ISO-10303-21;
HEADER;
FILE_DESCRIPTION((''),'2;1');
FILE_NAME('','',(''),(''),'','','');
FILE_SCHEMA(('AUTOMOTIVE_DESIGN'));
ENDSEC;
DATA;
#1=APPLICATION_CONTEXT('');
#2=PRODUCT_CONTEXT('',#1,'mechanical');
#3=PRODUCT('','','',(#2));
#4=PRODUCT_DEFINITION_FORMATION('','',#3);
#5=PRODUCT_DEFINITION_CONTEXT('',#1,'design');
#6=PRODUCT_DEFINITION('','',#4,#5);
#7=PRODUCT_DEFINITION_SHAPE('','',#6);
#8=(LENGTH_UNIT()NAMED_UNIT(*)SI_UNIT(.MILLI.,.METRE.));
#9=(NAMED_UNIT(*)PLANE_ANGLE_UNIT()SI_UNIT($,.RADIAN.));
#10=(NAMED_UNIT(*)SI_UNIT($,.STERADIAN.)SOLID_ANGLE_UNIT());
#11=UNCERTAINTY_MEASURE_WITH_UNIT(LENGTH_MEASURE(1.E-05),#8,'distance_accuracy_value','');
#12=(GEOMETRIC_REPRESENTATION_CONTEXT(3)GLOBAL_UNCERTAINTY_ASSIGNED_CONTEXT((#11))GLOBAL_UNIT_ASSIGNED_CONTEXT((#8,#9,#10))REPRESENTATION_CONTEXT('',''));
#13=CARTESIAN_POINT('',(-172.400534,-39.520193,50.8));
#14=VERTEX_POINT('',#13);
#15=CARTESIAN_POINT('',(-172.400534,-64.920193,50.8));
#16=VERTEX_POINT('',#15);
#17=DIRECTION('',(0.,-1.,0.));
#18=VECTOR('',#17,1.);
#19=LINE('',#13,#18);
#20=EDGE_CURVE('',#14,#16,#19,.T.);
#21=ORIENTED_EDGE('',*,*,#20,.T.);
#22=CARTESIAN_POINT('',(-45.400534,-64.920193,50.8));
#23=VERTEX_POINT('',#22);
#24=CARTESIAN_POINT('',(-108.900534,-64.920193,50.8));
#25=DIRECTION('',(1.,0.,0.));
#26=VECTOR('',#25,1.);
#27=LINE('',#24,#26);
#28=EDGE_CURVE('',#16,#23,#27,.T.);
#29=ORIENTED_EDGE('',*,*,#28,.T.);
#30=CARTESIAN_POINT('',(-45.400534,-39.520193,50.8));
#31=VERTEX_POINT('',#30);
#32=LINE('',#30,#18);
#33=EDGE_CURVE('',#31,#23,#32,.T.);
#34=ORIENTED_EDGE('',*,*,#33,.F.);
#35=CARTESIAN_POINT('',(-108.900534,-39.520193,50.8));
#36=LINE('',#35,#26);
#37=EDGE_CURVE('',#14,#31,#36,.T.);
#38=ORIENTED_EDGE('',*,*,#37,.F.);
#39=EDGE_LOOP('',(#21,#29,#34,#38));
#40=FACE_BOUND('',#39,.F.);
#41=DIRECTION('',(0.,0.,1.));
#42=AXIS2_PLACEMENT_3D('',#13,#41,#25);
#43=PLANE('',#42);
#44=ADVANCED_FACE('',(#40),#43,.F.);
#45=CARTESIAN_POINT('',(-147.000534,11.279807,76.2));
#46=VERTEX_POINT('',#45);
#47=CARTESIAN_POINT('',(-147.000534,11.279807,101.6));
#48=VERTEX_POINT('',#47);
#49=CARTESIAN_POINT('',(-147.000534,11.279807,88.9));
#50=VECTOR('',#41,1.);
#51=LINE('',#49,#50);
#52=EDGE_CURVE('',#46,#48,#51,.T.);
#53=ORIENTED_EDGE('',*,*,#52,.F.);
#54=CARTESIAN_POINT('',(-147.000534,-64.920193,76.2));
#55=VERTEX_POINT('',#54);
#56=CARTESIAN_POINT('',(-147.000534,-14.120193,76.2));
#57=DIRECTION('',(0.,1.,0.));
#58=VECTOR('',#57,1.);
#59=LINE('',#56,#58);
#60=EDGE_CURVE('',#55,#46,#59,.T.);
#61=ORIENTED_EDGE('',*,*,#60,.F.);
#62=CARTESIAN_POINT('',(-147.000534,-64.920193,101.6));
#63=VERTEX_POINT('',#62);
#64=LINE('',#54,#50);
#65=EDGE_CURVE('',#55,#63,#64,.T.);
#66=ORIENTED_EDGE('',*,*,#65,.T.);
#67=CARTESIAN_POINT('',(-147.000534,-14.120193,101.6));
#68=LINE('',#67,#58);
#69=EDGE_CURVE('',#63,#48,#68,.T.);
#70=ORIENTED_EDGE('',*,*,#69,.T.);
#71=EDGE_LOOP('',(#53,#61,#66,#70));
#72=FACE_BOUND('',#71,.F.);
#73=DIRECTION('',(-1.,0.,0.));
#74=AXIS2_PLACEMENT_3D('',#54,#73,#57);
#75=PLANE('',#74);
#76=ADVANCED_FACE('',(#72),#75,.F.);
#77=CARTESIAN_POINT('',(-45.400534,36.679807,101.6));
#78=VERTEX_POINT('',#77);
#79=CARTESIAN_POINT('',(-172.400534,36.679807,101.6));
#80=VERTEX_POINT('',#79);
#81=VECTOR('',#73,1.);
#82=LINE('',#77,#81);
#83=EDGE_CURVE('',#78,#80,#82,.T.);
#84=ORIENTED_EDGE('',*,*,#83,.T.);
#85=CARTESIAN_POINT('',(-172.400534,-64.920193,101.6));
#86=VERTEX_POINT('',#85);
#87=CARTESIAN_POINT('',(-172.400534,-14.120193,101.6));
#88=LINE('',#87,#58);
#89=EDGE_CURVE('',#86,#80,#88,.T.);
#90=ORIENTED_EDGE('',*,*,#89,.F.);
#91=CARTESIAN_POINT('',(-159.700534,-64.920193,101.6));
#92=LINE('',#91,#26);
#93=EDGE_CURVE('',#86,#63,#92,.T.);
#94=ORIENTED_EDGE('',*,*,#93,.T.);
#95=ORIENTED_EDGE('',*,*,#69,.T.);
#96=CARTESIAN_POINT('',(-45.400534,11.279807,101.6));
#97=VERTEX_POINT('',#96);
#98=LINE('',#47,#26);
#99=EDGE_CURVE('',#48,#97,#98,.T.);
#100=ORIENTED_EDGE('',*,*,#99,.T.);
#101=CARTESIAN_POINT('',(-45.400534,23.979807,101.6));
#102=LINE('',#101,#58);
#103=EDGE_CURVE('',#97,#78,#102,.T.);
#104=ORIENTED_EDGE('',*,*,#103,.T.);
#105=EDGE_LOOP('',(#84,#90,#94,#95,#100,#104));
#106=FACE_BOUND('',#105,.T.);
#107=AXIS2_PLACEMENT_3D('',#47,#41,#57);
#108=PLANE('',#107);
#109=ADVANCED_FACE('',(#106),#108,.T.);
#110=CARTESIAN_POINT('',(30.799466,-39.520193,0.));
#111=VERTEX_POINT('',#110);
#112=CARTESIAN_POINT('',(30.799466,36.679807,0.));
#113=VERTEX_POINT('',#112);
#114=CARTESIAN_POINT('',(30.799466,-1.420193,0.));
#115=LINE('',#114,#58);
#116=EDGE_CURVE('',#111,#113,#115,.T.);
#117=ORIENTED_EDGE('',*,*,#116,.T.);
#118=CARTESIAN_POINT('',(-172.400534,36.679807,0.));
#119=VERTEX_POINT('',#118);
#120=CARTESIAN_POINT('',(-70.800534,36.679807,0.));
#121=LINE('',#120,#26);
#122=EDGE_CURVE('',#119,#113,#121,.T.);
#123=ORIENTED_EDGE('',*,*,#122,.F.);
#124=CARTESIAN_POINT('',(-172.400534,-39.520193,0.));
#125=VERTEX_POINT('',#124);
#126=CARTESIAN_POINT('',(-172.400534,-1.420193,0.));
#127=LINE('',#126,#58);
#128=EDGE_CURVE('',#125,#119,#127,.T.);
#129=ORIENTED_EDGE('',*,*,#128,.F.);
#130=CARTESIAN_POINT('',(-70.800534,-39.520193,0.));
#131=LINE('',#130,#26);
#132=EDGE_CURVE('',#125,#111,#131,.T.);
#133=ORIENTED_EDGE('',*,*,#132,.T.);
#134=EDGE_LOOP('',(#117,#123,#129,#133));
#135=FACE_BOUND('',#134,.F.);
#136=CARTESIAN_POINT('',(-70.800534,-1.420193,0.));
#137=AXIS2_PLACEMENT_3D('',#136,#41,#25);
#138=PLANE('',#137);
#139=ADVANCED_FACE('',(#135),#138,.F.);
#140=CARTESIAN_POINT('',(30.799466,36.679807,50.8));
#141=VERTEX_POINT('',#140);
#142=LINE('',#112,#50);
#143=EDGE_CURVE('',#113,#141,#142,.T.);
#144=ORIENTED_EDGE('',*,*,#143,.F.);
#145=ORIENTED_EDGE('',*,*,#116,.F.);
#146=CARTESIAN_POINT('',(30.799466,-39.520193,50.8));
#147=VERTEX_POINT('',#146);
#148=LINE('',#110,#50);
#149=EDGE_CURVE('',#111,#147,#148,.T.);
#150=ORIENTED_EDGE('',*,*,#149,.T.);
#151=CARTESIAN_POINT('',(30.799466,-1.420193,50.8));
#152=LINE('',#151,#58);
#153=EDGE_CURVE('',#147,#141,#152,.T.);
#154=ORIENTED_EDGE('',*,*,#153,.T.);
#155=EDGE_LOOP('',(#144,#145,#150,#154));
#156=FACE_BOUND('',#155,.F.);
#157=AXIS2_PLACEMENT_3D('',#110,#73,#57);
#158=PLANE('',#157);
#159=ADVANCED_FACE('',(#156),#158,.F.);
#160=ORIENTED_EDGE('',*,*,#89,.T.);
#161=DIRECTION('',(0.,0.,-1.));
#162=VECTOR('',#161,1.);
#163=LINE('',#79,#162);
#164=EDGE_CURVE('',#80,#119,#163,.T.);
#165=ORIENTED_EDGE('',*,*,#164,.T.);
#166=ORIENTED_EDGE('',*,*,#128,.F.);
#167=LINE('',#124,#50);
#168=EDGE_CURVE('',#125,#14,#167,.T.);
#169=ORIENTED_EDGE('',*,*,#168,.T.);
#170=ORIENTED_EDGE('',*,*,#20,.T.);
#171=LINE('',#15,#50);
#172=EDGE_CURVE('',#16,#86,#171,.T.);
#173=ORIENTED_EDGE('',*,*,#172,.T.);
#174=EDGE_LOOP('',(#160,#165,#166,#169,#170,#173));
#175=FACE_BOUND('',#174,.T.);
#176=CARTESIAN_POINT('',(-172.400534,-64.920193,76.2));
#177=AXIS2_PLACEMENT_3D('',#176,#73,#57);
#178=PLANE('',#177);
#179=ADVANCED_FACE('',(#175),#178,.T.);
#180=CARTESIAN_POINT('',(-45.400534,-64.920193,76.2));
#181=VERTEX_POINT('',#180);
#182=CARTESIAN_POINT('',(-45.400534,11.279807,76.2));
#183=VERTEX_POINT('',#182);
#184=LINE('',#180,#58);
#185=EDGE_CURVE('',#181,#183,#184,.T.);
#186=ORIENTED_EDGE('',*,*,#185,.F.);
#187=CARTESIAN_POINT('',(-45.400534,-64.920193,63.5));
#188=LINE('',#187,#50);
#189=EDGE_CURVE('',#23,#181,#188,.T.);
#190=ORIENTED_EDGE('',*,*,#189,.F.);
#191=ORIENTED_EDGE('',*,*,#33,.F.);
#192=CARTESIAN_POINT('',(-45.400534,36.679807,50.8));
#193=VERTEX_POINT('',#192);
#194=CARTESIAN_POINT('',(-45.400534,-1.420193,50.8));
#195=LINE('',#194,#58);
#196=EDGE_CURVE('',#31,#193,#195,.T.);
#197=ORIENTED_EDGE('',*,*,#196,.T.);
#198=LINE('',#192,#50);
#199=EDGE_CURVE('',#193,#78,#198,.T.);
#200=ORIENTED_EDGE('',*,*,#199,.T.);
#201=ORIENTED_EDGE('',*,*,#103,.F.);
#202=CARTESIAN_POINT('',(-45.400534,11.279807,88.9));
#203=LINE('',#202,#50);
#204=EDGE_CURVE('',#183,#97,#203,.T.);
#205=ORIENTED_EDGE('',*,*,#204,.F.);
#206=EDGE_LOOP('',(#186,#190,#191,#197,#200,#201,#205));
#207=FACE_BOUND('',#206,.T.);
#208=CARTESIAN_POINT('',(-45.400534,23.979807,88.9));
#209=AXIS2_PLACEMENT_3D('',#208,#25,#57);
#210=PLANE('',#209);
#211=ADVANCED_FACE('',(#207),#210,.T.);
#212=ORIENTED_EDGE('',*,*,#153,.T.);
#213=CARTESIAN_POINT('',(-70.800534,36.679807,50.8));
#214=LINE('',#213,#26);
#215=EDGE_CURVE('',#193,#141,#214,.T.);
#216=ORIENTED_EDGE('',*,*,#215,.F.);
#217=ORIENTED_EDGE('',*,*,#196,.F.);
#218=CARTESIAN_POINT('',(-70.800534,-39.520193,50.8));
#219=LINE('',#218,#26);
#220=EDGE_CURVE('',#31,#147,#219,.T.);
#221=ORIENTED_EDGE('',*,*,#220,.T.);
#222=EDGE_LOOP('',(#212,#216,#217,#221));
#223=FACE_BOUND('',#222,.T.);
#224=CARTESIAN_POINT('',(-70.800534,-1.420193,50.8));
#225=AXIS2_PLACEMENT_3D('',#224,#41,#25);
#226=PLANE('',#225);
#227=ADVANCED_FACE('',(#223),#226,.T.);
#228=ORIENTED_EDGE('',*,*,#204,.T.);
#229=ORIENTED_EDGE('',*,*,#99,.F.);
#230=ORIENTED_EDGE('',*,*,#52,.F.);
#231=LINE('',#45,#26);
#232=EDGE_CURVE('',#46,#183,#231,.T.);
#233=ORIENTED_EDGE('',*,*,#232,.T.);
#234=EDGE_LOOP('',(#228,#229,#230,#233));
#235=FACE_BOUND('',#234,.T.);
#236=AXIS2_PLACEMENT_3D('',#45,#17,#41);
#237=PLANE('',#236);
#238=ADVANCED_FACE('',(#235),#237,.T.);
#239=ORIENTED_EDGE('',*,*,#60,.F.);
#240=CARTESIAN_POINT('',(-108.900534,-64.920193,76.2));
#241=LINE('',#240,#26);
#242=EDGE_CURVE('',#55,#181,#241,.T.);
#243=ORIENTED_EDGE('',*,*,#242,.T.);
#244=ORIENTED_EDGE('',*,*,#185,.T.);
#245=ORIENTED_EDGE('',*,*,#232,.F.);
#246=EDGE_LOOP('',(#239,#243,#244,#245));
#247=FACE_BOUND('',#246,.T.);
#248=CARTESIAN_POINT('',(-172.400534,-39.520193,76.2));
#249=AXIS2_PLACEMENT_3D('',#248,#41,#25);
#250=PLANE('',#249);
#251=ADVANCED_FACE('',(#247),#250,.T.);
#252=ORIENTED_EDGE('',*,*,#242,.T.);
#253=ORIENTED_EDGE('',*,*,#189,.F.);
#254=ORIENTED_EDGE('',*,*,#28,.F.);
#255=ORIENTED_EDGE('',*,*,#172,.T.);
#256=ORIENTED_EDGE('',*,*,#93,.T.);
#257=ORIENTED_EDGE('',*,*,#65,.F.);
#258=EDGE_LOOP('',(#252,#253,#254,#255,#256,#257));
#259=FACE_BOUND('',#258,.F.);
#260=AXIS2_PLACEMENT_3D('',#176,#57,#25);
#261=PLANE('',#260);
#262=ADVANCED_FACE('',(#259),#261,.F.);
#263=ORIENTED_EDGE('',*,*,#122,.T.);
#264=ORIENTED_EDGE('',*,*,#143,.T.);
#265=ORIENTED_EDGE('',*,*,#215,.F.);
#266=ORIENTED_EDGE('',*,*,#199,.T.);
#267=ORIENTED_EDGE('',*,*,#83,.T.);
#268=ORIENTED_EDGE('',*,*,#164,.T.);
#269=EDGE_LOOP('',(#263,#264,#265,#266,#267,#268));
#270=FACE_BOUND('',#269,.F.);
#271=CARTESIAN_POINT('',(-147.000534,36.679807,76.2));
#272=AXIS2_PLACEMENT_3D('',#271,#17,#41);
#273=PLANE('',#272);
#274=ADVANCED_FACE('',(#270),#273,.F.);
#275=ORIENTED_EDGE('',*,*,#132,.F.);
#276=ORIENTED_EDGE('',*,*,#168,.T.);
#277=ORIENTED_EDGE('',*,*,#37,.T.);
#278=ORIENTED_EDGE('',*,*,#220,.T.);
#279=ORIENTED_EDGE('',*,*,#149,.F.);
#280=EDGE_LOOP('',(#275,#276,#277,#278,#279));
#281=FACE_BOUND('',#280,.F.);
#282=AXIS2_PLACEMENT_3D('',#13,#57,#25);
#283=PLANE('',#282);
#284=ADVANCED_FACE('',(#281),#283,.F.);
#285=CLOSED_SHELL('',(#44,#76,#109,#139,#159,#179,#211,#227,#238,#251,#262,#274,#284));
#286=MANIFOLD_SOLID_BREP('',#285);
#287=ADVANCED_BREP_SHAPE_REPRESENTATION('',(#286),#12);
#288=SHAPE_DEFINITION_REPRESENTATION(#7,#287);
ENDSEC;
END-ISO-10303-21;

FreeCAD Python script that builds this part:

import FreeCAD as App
import Part
import Sketcher

V = App.Vector
Q = App.Units.Quantity


def add_polygon(sketch, points):
    """Adds a closed chain of lines whose ends are joined by coincident constraints."""
    first, n = sketch.GeometryCount, len(points)
    for a, b in zip(points, points[1:] + points[:1]):
        sketch.addGeometry(Part.LineSegment(App.Vector(*a, 0), App.Vector(*b, 0)), False)
    for i in range(n):
        sketch.addConstraint(Sketcher.Constraint("Coincident", first + i, 2, first + (i + 1) % n, 1))

doc = App.newDocument("Part")
body = doc.addObject("PartDesign::Body", "Body")

# Sketch on XY plane
sketch1 = body.newObject("Sketcher::SketchObject", "Sketch")
sketch1.AttachmentSupport = (doc.getObject("XY_Plane"), [""])
sketch1.MapMode = "FlatFace"
add_polygon(sketch1, [(-172, 37), (-172, -40), (31, -40), (31, 37)])  # lines 0-3
sketch1.addConstraint(Sketcher.Constraint("Vertical", 0))
sketch1.addConstraint(Sketcher.Constraint("Horizontal", 1))
sketch1.addConstraint(Sketcher.Constraint("Vertical", 2))
sketch1.addConstraint(Sketcher.Constraint("Horizontal", 3))
sketch1.addConstraint(Sketcher.Constraint("DistanceX", 1, 1, 1, 2, Q("8 in")))
sketch1.addConstraint(Sketcher.Constraint("DistanceY", 0, 2, 0, 1, Q("3 in")))
sketch1.addConstraint(Sketcher.Constraint("DistanceX", 0, 2, -1, 1, 172.400534))
sketch1.addConstraint(Sketcher.Constraint("DistanceY", 0, 2, -1, 1, 39.520193))
pad1 = body.newObject("PartDesign::Pad", "Pad")
pad1.Profile = sketch1
pad1.Length = Q("2 in")

# Sketch on XY plane
sketch2 = body.newObject("Sketcher::SketchObject", "Sketch001")
sketch2.AttachmentSupport = (doc.getObject("XY_Plane"), [""])
sketch2.MapMode = "FlatFace"
sketch2.AttachmentOffset = App.Placement(V(0, 0, 2 * 25.4), App.Rotation())
add_polygon(sketch2, [(-172, 37), (-172, -40), (-45, -40), (-45, 37)])  # lines 0-3
sketch2.addConstraint(Sketcher.Constraint("Vertical", 0))
sketch2.addConstraint(Sketcher.Constraint("Horizontal", 1))
sketch2.addConstraint(Sketcher.Constraint("Vertical", 2))
sketch2.addConstraint(Sketcher.Constraint("Horizontal", 3))
sketch2.addConstraint(Sketcher.Constraint("DistanceX", 1, 1, 1, 2, Q("5 in")))
sketch2.addConstraint(Sketcher.Constraint("DistanceY", 0, 2, 0, 1, Q("3 in")))
sketch2.addConstraint(Sketcher.Constraint("DistanceX", 0, 2, -1, 1, 172.400534))
sketch2.addConstraint(Sketcher.Constraint("DistanceY", 0, 2, -1, 1, 39.520193))
pad2 = body.newObject("PartDesign::Pad", "Pad001")
pad2.Profile = sketch2
pad2.Length = Q("1 in")

# Sketch on XZ plane
sketch3 = body.newObject("Sketcher::SketchObject", "Sketch002")
sketch3.AttachmentSupport = (doc.getObject("XZ_Plane"), [""])
sketch3.MapMode = "FlatFace"
sketch3.AttachmentOffset = App.Placement(V(0, 0, 39.520193), App.Rotation())
add_polygon(sketch3, [(-172, 76), (-172, 51), (-45, 51), (-45, 76)])  # lines 0-3
sketch3.addConstraint(Sketcher.Constraint("Vertical", 0))
sketch3.addConstraint(Sketcher.Constraint("Horizontal", 1))
sketch3.addConstraint(Sketcher.Constraint("Vertical", 2))
sketch3.addConstraint(Sketcher.Constraint("Horizontal", 3))
sketch3.addConstraint(Sketcher.Constraint("DistanceX", 1, 1, 1, 2, Q("5 in")))
sketch3.addConstraint(Sketcher.Constraint("DistanceY", 0, 2, 0, 1, Q("1 in")))
sketch3.addConstraint(Sketcher.Constraint("DistanceY", -1, 1, 0, 2, Q("2 in")))
sketch3.addConstraint(Sketcher.Constraint("DistanceX", 0, 2, -1, 1, 172.400534))
pad3 = body.newObject("PartDesign::Pad", "Pad002")
pad3.Profile = sketch3
pad3.Length = Q("1 in")

# Sketch on XY plane
sketch4 = body.newObject("Sketcher::SketchObject", "Sketch003")
sketch4.AttachmentSupport = (doc.getObject("XY_Plane"), [""])
sketch4.MapMode = "FlatFace"
sketch4.AttachmentOffset = App.Placement(V(0, 0, 3 * 25.4), App.Rotation())
add_polygon(sketch4, [(-172, 37), (-172, -65), (-147, -65), (-147, 37)])  # lines 0-3
sketch4.addConstraint(Sketcher.Constraint("Vertical", 0))
sketch4.addConstraint(Sketcher.Constraint("Horizontal", 1))
sketch4.addConstraint(Sketcher.Constraint("Vertical", 2))
sketch4.addConstraint(Sketcher.Constraint("Horizontal", 3))
sketch4.addConstraint(Sketcher.Constraint("DistanceX", 1, 1, 1, 2, Q("1 in")))
sketch4.addConstraint(Sketcher.Constraint("DistanceY", 0, 2, 0, 1, Q("4 in")))
sketch4.addConstraint(Sketcher.Constraint("DistanceX", 0, 2, -1, 1, 172.400534))
sketch4.addConstraint(Sketcher.Constraint("DistanceY", 0, 2, -1, 1, 64.920193))
pad4 = body.newObject("PartDesign::Pad", "Pad003")
pad4.Profile = sketch4
pad4.Length = Q("1 in")

# Sketch on YZ plane
sketch5 = body.newObject("Sketcher::SketchObject", "Sketch004")
sketch5.AttachmentSupport = (doc.getObject("YZ_Plane"), [""])
sketch5.MapMode = "FlatFace"
sketch5.AttachmentOffset = App.Placement(V(0, 0, -147.000534), App.Rotation())
add_polygon(sketch5, [(11, 102), (11, 76), (37, 76), (37, 102)])  # lines 0-3
sketch5.addConstraint(Sketcher.Constraint("Vertical", 0))
sketch5.addConstraint(Sketcher.Constraint("Horizontal", 1))
sketch5.addConstraint(Sketcher.Constraint("Vertical", 2))
sketch5.addConstraint(Sketcher.Constraint("Horizontal", 3))
sketch5.addConstraint(Sketcher.Constraint("Equal", 3, 0))
sketch5.addConstraint(Sketcher.Constraint("DistanceX", 1, 1, 1, 2, Q("1 in")))
sketch5.addConstraint(Sketcher.Constraint("DistanceY", -1, 1, 0, 2, Q("3 in")))
sketch5.addConstraint(Sketcher.Constraint("DistanceX", -1, 1, 0, 2, 11.279807))
pad5 = body.newObject("PartDesign::Pad", "Pad004")
pad5.Profile = sketch5
pad5.Length = Q("4 in")

doc.recompute()
